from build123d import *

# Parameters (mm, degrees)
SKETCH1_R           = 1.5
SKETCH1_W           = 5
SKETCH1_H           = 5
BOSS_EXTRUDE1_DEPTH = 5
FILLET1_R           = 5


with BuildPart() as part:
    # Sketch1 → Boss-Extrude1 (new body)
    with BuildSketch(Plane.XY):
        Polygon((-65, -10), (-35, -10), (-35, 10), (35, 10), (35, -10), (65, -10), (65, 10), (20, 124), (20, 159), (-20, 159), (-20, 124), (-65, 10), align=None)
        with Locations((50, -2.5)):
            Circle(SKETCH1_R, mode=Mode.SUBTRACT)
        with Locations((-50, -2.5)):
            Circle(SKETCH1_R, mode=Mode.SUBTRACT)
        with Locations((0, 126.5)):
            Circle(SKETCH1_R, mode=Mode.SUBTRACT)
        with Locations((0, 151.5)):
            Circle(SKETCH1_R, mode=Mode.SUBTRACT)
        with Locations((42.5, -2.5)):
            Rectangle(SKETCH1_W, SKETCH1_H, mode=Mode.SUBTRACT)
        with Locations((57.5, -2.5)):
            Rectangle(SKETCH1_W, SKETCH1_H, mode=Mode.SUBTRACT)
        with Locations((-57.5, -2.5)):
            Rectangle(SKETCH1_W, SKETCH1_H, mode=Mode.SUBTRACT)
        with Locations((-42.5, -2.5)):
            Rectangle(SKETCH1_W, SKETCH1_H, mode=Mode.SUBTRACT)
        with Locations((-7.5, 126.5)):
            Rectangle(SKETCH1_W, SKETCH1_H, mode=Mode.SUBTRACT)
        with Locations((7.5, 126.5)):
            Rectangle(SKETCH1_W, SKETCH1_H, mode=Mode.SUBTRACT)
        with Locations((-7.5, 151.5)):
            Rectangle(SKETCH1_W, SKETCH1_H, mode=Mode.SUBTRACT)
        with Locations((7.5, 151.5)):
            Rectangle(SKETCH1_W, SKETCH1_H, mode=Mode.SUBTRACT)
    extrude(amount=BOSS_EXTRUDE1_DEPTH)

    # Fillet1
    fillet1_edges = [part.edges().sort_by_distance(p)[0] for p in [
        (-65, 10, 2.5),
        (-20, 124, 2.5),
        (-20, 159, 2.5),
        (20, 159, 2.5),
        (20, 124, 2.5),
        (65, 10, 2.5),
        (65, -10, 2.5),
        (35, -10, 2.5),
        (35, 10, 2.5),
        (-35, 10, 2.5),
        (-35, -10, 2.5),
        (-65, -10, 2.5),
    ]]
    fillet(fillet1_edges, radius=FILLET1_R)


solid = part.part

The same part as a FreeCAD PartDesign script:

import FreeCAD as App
import Part
import Sketcher


def edges_at(feature, points):
    """Names of the edges that pass closest to the given points."""
    edges = feature.Shape.Edges
    near = lambda p: min(range(len(edges)), key=lambda i: edges[i].distToShape(Part.Vertex(*p))[0])
    return sorted({f"Edge{near(p) + 1}" for p in points})

doc = App.newDocument("Part")
body = doc.addObject("PartDesign::Body", "Body")

# Sketch on XY plane
sketch1 = body.newObject("Sketcher::SketchObject", "Sketch")
sketch1.AttachmentSupport = (doc.getObject("XY_Plane"), [""])
sketch1.MapMode = "FlatFace"
sketch1.addGeometry(Part.LineSegment(App.Vector(-65, -10, 0), App.Vector(-35, -10, 0)), False)
sketch1.addGeometry(Part.LineSegment(App.Vector(-35, -10, 0), App.Vector(-35, 10, 0)), False)
sketch1.addGeometry(Part.LineSegment(App.Vector(-35, 10, 0), App.Vector(35, 10, 0)), False)
sketch1.addGeometry(Part.LineSegment(App.Vector(35, 10, 0), App.Vector(35, -10, 0)), False)
sketch1.addGeometry(Part.LineSegment(App.Vector(35, -10, 0), App.Vector(65, -10, 0)), False)
sketch1.addGeometry(Part.LineSegment(App.Vector(65, -10, 0), App.Vector(65, 10, 0)), False)
sketch1.addGeometry(Part.LineSegment(App.Vector(65, 10, 0), App.Vector(20, 124, 0)), False)
sketch1.addGeometry(Part.LineSegment(App.Vector(20, 124, 0), App.Vector(20, 159, 0)), False)
sketch1.addGeometry(Part.LineSegment(App.Vector(20, 159, 0), App.Vector(-20, 159, 0)), False)
sketch1.addGeometry(Part.LineSegment(App.Vector(-20, 159, 0), App.Vector(-20, 124, 0)), False)
sketch1.addGeometry(Part.LineSegment(App.Vector(-20, 124, 0), App.Vector(-65, 10, 0)), False)
sketch1.addGeometry(Part.LineSegment(App.Vector(-65, 10, 0), App.Vector(-65, -10, 0)), False)
sketch1.addGeometry(Part.LineSegment(App.Vector(-55, -5, 0), App.Vector(-60, -5, 0)), False)
sketch1.addGeometry(Part.LineSegment(App.Vector(-60, -5, 0), App.Vector(-60, 0, 0)), False)
sketch1.addGeometry(Part.LineSegment(App.Vector(-60, 0, 0), App.Vector(-55, 0, 0)), False)
sketch1.addGeometry(Part.LineSegment(App.Vector(-55, 0, 0), App.Vector(-55, -5, 0)), False)
sketch1.addGeometry(Part.Circle(App.Vector(-50, -2.5, 0), App.Vector(0, 0, 1), 1.5), False)
sketch1.addGeometry(Part.LineSegment(App.Vector(-40, -5, 0), App.Vector(-45, -5, 0)), False)
sketch1.addGeometry(Part.LineSegment(App.Vector(-45, -5, 0), App.Vector(-45, 0, 0)), False)
sketch1.addGeometry(Part.LineSegment(App.Vector(-45, 0, 0), App.Vector(-40, 0, 0)), False)
sketch1.addGeometry(Part.LineSegment(App.Vector(-40, 0, 0), App.Vector(-40, -5, 0)), False)
sketch1.addGeometry(Part.LineSegment(App.Vector(45, -5, 0), App.Vector(40, -5, 0)), False)
sketch1.addGeometry(Part.LineSegment(App.Vector(40, -5, 0), App.Vector(40, 0, 0)), False)
sketch1.addGeometry(Part.LineSegment(App.Vector(40, 0, 0), App.Vector(45, 0, 0)), False)
sketch1.addGeometry(Part.LineSegment(App.Vector(45, 0, 0), App.Vector(45, -5, 0)), False)
sketch1.addGeometry(Part.Circle(App.Vector(50, -2.5, 0), App.Vector(0, 0, 1), 1.5), False)
sketch1.addGeometry(Part.LineSegment(App.Vector(60, -5, 0), App.Vector(55, -5, 0)), False)
sketch1.addGeometry(Part.LineSegment(App.Vector(55, -5, 0), App.Vector(55, 0, 0)), False)
sketch1.addGeometry(Part.LineSegment(App.Vector(55, 0, 0), App.Vector(60, 0, 0)), False)
sketch1.addGeometry(Part.LineSegment(App.Vector(60, 0, 0), App.Vector(60, -5, 0)), False)
sketch1.addGeometry(Part.LineSegment(App.Vector(-5, 124, 0), App.Vector(-10, 124, 0)), False)
sketch1.addGeometry(Part.LineSegment(App.Vector(-10, 124, 0), App.Vector(-10, 129, 0)), False)
sketch1.addGeometry(Part.LineSegment(App.Vector(-10, 129, 0), App.Vector(-5, 129, 0)), False)
sketch1.addGeometry(Part.LineSegment(App.Vector(-5, 129, 0), App.Vector(-5, 124, 0)), False)
sketch1.addGeometry(Part.LineSegment(App.Vector(-5, 149, 0), App.Vector(-10, 149, 0)), False)
sketch1.addGeometry(Part.LineSegment(App.Vector(-10, 149, 0), App.Vector(-10, 154, 0)), False)
sketch1.addGeometry(Part.LineSegment(App.Vector(-10, 154, 0), App.Vector(-5, 154, 0)), False)
sketch1.addGeometry(Part.LineSegment(App.Vector(-5, 154, 0), App.Vector(-5, 149, 0)), False)
sketch1.addGeometry(Part.Circle(App.Vector(0, 126.5, 0), App.Vector(0, 0, 1), 1.5), False)
sketch1.addGeometry(Part.LineSegment(App.Vector(10, 124, 0), App.Vector(5, 124, 0)), False)
sketch1.addGeometry(Part.LineSegment(App.Vector(5, 124, 0), App.Vector(5, 129, 0)), False)
sketch1.addGeometry(Part.LineSegment(App.Vector(5, 129, 0), App.Vector(10, 129, 0)), False)
sketch1.addGeometry(Part.LineSegment(App.Vector(10, 129, 0), App.Vector(10, 124, 0)), False)
sketch1.addGeometry(Part.Circle(App.Vector(0, 151.5, 0), App.Vector(0, 0, 1), 1.5), False)
sketch1.addGeometry(Part.LineSegment(App.Vector(10, 149, 0), App.Vector(5, 149, 0)), False)
sketch1.addGeometry(Part.LineSegment(App.Vector(5, 149, 0), App.Vector(5, 154, 0)), False)
sketch1.addGeometry(Part.LineSegment(App.Vector(5, 154, 0), App.Vector(10, 154, 0)), False)
sketch1.addGeometry(Part.LineSegment(App.Vector(10, 154, 0), App.Vector(10, 149, 0)), False)
sketch1.addConstraint(Sketcher.Constraint("Coincident", 0, 2, 1, 1))
sketch1.addConstraint(Sketcher.Constraint("Coincident", 1, 2, 2, 1))
sketch1.addConstraint(Sketcher.Constraint("Coincident", 2, 2, 3, 1))
sketch1.addConstraint(Sketcher.Constraint("Coincident", 3, 2, 4, 1))
sketch1.addConstraint(Sketcher.Constraint("Coincident", 4, 2, 5, 1))
sketch1.addConstraint(Sketcher.Constraint("Coincident", 5, 2, 6, 1))
sketch1.addConstraint(Sketcher.Constraint("Coincident", 6, 2, 7, 1))
sketch1.addConstraint(Sketcher.Constraint("Coincident", 7, 2, 8, 1))
sketch1.addConstraint(Sketcher.Constraint("Coincident", 8, 2, 9, 1))
sketch1.addConstraint(Sketcher.Constraint("Coincident", 9, 2, 10, 1))
sketch1.addConstraint(Sketcher.Constraint("Coincident", 10, 2, 11, 1))
sketch1.addConstraint(Sketcher.Constraint("Coincident", 11, 2, 0, 1))
sketch1.addConstraint(Sketcher.Constraint("Coincident", 12, 2, 13, 1))
sketch1.addConstraint(Sketcher.Constraint("Coincident", 13, 2, 14, 1))
sketch1.addConstraint(Sketcher.Constraint("Coincident", 14, 2, 15, 1))
sketch1.addConstraint(Sketcher.Constraint("Coincident", 15, 2, 12, 1))
sketch1.addConstraint(Sketcher.Constraint("Coincident", 17, 2, 18, 1))
sketch1.addConstraint(Sketcher.Constraint("Coincident", 18, 2, 19, 1))
sketch1.addConstraint(Sketcher.Constraint("Coincident", 19, 2, 20, 1))
sketch1.addConstraint(Sketcher.Constraint("Coincident", 20, 2, 17, 1))
sketch1.addConstraint(Sketcher.Constraint("Coincident", 21, 2, 22, 1))
sketch1.addConstraint(Sketcher.Constraint("Coincident", 22, 2, 23, 1))
sketch1.addConstraint(Sketcher.Constraint("Coincident", 23, 2, 24, 1))
sketch1.addConstraint(Sketcher.Constraint("Coincident", 24, 2, 21, 1))
sketch1.addConstraint(Sketcher.Constraint("Coincident", 26, 2, 27, 1))
sketch1.addConstraint(Sketcher.Constraint("Coincident", 27, 2, 28, 1))
sketch1.addConstraint(Sketcher.Constraint("Coincident", 28, 2, 29, 1))
sketch1.addConstraint(Sketcher.Constraint("Coincident", 29, 2, 26, 1))
sketch1.addConstraint(Sketcher.Constraint("Coincident", 30, 2, 31, 1))
sketch1.addConstraint(Sketcher.Constraint("Coincident", 31, 2, 32, 1))
sketch1.addConstraint(Sketcher.Constraint("Coincident", 32, 2, 33, 1))
sketch1.addConstraint(Sketcher.Constraint("Coincident", 33, 2, 30, 1))
sketch1.addConstraint(Sketcher.Constraint("Coincident", 34, 2, 35, 1))
sketch1.addConstraint(Sketcher.Constraint("Coincident", 35, 2, 36, 1))
sketch1.addConstraint(Sketcher.Constraint("Coincident", 36, 2, 37, 1))
sketch1.addConstraint(Sketcher.Constraint("Coincident", 37, 2, 34, 1))
sketch1.addConstraint(Sketcher.Constraint("Coincident", 39, 2, 40, 1))
sketch1.addConstraint(Sketcher.Constraint("Coincident", 40, 2, 41, 1))
sketch1.addConstraint(Sketcher.Constraint("Coincident", 41, 2, 42, 1))
sketch1.addConstraint(Sketcher.Constraint("Coincident", 42, 2, 39, 1))
sketch1.addConstraint(Sketcher.Constraint("Coincident", 44, 2, 45, 1))
sketch1.addConstraint(Sketcher.Constraint("Coincident", 45, 2, 46, 1))
sketch1.addConstraint(Sketcher.Constraint("Coincident", 46, 2, 47, 1))
sketch1.addConstraint(Sketcher.Constraint("Coincident", 47, 2, 44, 1))
sketch1.addConstraint(Sketcher.Constraint("Horizontal", 0))
sketch1.addConstraint(Sketcher.Constraint("Vertical", 1))
sketch1.addConstraint(Sketcher.Constraint("Horizontal", 2))
sketch1.addConstraint(Sketcher.Constraint("Vertical", 3))
sketch1.addConstraint(Sketcher.Constraint("Horizontal", 4))
sketch1.addConstraint(Sketcher.Constraint("Vertical", 5))
sketch1.addConstraint(Sketcher.Constraint("Vertical", 7))
sketch1.addConstraint(Sketcher.Constraint("Horizontal", 8))
sketch1.addConstraint(Sketcher.Constraint("Vertical", 9))
sketch1.addConstraint(Sketcher.Constraint("Vertical", 11))
sketch1.addConstraint(Sketcher.Constraint("Horizontal", 12))
sketch1.addConstraint(Sketcher.Constraint("Vertical", 13))
sketch1.addConstraint(Sketcher.Constraint("Horizontal", 14))
sketch1.addConstraint(Sketcher.Constraint("Vertical", 15))
sketch1.addConstraint(Sketcher.Constraint("Horizontal", 17))
sketch1.addConstraint(Sketcher.Constraint("Vertical", 18))
sketch1.addConstraint(Sketcher.Constraint("Horizontal", 19))
sketch1.addConstraint(Sketcher.Constraint("Vertical", 20))
sketch1.addConstraint(Sketcher.Constraint("Horizontal", 21))
sketch1.addConstraint(Sketcher.Constraint("Vertical", 22))
sketch1.addConstraint(Sketcher.Constraint("Horizontal", 23))
sketch1.addConstraint(Sketcher.Constraint("Vertical", 24))
sketch1.addConstraint(Sketcher.Constraint("Horizontal", 26))
sketch1.addConstraint(Sketcher.Constraint("Vertical", 27))
sketch1.addConstraint(Sketcher.Constraint("Horizontal", 28))
sketch1.addConstraint(Sketcher.Constraint("Vertical", 29))
sketch1.addConstraint(Sketcher.Constraint("Horizontal", 30))
sketch1.addConstraint(Sketcher.Constraint("Vertical", 31))
sketch1.addConstraint(Sketcher.Constraint("Horizontal", 32))
sketch1.addConstraint(Sketcher.Constraint("Vertical", 33))
sketch1.addConstraint(Sketcher.Constraint("Horizontal", 34))
sketch1.addConstraint(Sketcher.Constraint("Vertical", 35))
sketch1.addConstraint(Sketcher.Constraint("Horizontal", 36))
sketch1.addConstraint(Sketcher.Constraint("Vertical", 37))
sketch1.addConstraint(Sketcher.Constraint("Horizontal", 39))
sketch1.addConstraint(Sketcher.Constraint("Vertical", 40))
sketch1.addConstraint(Sketcher.Constraint("Horizontal", 41))
sketch1.addConstraint(Sketcher.Constraint("Vertical", 42))
sketch1.addConstraint(Sketcher.Constraint("Horizontal", 44))
sketch1.addConstraint(Sketcher.Constraint("Vertical", 45))
sketch1.addConstraint(Sketcher.Constraint("Horizontal", 46))
sketch1.addConstraint(Sketcher.Constraint("Vertical", 47))
sketch1.addConstraint(Sketcher.Constraint("Equal", 16, 25))
sketch1.addConstraint(Sketcher.Constraint("Equal", 25, 38))
sketch1.addConstraint(Sketcher.Constraint("Equal", 38, 43))
sketch1.addConstraint(Sketcher.Constraint("Symmetric", 0, 2, 2, 2, -1, 1))
sketch1.addConstraint(Sketcher.Constraint("Symmetric", 4, 2, 10, 2, -1, 1))
sketch1.addConstraint(Sketcher.Constraint("Symmetric", 19, 2, 22, 2, -1, 1))
sketch1.addConstraint(Sketcher.Constraint("Symmetric", 14, 2, 27, 2, -1, 1))
sketch1.addConstraint(Sketcher.Constraint("Symmetric", 16, 3, 25, 3, -2))
sketch1.addConstraint(Sketcher.Constraint("Symmetric", 6, 2, 9, 2, -2))
sketch1.addConstraint(Sketcher.Constraint("Symmetric", 18, 2, 23, 2, -2))
sketch1.addConstraint(Sketcher.Constraint("Symmetric", 13, 2, 28, 2, -2))
sketch1.addConstraint(Sketcher.Constraint("Symmetric", 33, 2, 39, 2, -2))
sketch1.addConstraint(Sketcher.Constraint("Symmetric", 31, 2, 41, 2, -2))
sketch1.addConstraint(Sketcher.Constraint("Symmetric", 37, 2, 44, 2, -2))
sketch1.addConstraint(Sketcher.Constraint("Symmetric", 35, 2, 46, 2, -2))
sketch1.addConstraint(Sketcher.Constraint("PointOnObject", 38, 3, -2))
sketch1.addConstraint(Sketcher.Constraint("PointOnObject", 43, 3, -2))
sketch1.addConstraint(Sketcher.Constraint("Horizontal", 0, 2, 3, 2))
sketch1.addConstraint(Sketcher.Constraint("Horizontal", 2, 2, 5, 2))
sketch1.addConstraint(Sketcher.Constraint("Horizontal", 15, 2, 17, 2))
sketch1.addConstraint(Sketcher.Constraint("Horizontal", 20, 2, 21, 2))
sketch1.addConstraint(Sketcher.Constraint("Horizontal", 24, 2, 26, 2))
sketch1.addConstraint(Sketcher.Constraint("Horizontal", 9, 2, 30, 2))
sketch1.addConstraint(Sketcher.Constraint("Vertical", 31, 2, 34, 2))
sketch1.addConstraint(Sketcher.Constraint("Vertical", 33, 2, 36, 2))
sketch1.addConstraint(Sketcher.Constraint("Equal", 14, 17))
sketch1.addConstraint(Sketcher.Constraint("Equal", 28, 30))
sketch1.addConstraint(Sketcher.Constraint("Equal", 46, 13))
sketch1.addConstraint(Sketcher.Constraint("Equal", 29, 31))
sketch1.addConstraint(Sketcher.Constraint("Equal", 33, 35))
sketch1.addConstraint(Sketcher.Constraint("Diameter", 16, 3.0))
sketch1.addConstraint(Sketcher.Constraint("DistanceX", 0, 1, 0, 2, 30.0))
sketch1.addConstraint(Sketcher.Constraint("DistanceX", 2, 1, 2, 2, 70.0))
sketch1.addConstraint(Sketcher.Constraint("DistanceX", 8, 2, 8, 1, 40.0))
sketch1.addConstraint(Sketcher.Constraint("DistanceX", 12, 2, 12, 1, 5.0))
sketch1.addConstraint(Sketcher.Constraint("DistanceY", 1, 1, 1, 2, 20.0))
sketch1.addConstraint(Sketcher.Constraint("DistanceY", 7, 1, 7, 2, 35.0))
sketch1.addConstraint(Sketcher.Constraint("DistanceX", 16, 3, -1, 1, 50.0))
sketch1.addConstraint(Sketcher.Constraint("DistanceY", -1, 1, 6, 2, 124.0))
sketch1.addConstraint(Sketcher.Constraint("DistanceX", 12, 2, -1, 1, 60.0))
sketch1.addConstraint(Sketcher.Constraint("DistanceX", 17, 2, -1, 1, 45.0))
sketch1.addConstraint(Sketcher.Constraint("DistanceX", 30, 2, -1, 1, 10.0))
sketch1.addConstraint(Sketcher.Constraint("DistanceY", -1, 1, 34, 2, 149.0))
sketch1.addConstraint(Sketcher.Constraint("DistanceY", 16, 3, 38, 3, 129.0))
sketch1.addConstraint(Sketcher.Constraint("DistanceY", 38, 3, 43, 3, 25.0))
sketch1.addConstraint(Sketcher.Constraint("DistanceY", 16, 3, -1, 1, 2.5))
pad1 = body.newObject("PartDesign::Pad", "Pad")
pad1.Profile = sketch1
pad1.Length = 5
doc.recompute()

fillet = body.newObject("PartDesign::Fillet", "Fillet")
fillet.Base = (pad1, edges_at(pad1, [
    (-65, 10, 2.5),
    (-20, 124, 2.5),
    (-20, 159, 2.5),
    (20, 159, 2.5),
    (20, 124, 2.5),
    (65, 10, 2.5),
    (65, -10, 2.5),
    (35, -10, 2.5),
    (35, 10, 2.5),
    (-35, 10, 2.5),
    (-35, -10, 2.5),
    (-65, -10, 2.5),
]))
fillet.Radius = 5

doc.recompute()
